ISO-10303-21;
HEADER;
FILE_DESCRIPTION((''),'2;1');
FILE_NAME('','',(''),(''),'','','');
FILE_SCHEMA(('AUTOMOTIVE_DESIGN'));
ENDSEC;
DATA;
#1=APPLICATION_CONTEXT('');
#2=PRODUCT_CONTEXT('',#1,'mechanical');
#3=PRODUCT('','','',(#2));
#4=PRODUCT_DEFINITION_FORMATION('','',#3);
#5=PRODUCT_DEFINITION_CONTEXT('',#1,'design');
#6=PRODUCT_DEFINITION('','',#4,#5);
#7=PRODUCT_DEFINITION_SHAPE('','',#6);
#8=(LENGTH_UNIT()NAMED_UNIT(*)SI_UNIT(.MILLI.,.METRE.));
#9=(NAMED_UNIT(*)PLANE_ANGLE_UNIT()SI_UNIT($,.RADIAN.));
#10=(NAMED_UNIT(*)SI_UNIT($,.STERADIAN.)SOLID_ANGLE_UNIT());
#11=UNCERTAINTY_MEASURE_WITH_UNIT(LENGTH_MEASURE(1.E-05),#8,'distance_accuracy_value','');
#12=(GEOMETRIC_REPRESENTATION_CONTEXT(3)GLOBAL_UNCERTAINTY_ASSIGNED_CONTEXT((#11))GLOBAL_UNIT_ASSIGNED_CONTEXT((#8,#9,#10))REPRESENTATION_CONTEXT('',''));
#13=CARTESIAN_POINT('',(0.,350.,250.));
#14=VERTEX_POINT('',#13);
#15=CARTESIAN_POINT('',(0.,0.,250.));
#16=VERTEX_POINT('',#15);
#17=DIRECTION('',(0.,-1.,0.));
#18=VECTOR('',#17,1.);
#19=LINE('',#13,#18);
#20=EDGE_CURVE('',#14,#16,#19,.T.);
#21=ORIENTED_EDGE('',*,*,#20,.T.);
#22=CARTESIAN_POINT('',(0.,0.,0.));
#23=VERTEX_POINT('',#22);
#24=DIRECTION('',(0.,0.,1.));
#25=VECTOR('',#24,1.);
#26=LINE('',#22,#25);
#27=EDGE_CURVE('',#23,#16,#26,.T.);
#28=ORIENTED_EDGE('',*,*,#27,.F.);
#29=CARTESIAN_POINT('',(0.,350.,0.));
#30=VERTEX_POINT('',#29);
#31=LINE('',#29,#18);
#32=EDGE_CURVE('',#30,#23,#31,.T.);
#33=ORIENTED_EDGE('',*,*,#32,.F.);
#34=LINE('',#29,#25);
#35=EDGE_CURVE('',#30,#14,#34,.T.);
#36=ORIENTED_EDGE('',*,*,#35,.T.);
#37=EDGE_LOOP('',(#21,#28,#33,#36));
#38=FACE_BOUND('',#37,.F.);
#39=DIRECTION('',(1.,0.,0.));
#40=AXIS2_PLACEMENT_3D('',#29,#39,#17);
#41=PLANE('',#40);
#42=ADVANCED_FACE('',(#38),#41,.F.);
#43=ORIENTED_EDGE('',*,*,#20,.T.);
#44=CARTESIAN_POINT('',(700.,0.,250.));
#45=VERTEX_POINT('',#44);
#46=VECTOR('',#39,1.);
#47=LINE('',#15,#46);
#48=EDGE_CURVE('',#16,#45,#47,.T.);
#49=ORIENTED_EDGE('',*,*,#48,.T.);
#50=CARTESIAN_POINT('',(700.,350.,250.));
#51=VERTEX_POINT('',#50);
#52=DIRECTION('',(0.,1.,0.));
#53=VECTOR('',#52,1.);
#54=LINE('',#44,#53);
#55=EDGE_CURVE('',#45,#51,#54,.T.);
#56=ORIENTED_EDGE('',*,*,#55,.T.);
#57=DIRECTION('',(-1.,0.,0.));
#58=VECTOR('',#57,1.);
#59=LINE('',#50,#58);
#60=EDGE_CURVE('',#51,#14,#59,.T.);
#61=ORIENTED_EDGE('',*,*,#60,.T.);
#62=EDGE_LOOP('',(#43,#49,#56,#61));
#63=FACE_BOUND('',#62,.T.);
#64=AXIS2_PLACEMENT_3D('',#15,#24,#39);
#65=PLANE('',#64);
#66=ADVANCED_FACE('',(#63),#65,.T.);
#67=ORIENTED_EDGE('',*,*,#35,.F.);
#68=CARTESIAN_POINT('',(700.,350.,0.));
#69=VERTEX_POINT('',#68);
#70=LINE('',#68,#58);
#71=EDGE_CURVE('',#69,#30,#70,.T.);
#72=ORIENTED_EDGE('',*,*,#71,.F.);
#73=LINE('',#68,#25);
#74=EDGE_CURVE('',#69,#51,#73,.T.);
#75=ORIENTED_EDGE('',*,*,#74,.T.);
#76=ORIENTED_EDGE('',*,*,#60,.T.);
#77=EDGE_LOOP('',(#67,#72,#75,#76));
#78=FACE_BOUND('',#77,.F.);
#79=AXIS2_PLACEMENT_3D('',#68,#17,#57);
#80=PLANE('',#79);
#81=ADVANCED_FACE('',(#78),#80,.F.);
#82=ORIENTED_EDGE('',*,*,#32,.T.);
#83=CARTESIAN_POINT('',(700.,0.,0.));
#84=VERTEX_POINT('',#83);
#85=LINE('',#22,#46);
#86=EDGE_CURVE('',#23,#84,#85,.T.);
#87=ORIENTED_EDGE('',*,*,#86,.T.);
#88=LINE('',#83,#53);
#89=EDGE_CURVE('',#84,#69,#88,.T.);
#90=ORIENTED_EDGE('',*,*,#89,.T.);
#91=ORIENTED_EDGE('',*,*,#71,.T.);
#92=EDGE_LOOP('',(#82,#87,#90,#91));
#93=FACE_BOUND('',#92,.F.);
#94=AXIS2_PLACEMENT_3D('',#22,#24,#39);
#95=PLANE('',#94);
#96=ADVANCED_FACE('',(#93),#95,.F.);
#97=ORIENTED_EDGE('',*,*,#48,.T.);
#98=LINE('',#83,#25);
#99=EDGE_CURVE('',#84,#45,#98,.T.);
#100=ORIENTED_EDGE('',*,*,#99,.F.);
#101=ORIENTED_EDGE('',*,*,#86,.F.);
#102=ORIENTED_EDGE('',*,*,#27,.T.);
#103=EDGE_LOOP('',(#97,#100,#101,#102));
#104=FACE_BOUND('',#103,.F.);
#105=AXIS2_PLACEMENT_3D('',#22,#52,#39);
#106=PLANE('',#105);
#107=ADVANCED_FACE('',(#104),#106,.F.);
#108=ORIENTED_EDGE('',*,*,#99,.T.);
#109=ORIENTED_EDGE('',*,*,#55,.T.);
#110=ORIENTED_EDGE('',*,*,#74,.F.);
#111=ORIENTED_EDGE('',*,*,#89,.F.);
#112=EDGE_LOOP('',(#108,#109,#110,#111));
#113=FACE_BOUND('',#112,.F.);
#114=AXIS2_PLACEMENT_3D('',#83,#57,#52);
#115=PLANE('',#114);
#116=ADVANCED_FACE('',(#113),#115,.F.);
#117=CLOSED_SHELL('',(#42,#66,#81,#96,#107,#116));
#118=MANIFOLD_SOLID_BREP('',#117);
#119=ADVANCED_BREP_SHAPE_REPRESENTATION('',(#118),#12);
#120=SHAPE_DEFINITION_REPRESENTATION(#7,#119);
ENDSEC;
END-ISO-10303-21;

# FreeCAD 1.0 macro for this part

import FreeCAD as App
import Part
import Sketcher
from FreeCAD import Vector


def add_polygon(sketch, points):
    """Adds a closed chain of lines whose ends are joined by coincident constraints."""
    first, n = sketch.GeometryCount, len(points)
    for a, b in zip(points, points[1:] + points[:1]):
        sketch.addGeometry(Part.LineSegment(App.Vector(*a, 0), App.Vector(*b, 0)), False)
    for i in range(n):
        sketch.addConstraint(Sketcher.Constraint("Coincident", first + i, 2, first + (i + 1) % n, 1))

doc = App.newDocument("Part")
params = doc.addObject("Spreadsheet::Sheet", "Params")
for row, (alias, value) in enumerate([
    ("sketch1_width", "700 mm"),
    ("sketch1_height", "350 mm"),
    ("pad1_length", "250 mm"),
], start=1):
    params.set(f"A{row}", alias)
    params.set(f"B{row}", "=" + value)
    params.setAlias(f"B{row}", alias)

body = doc.addObject("PartDesign::Body", "Body")

sketch1 = doc.addObject("Sketcher::SketchObject", "Sketch")
body.addObject(sketch1)
sketch1.AttachmentSupport = (doc.XY_Plane, [""])
sketch1.MapMode = "FlatFace"
add_polygon(sketch1, [(0, 350), (0, 0), (700, 0), (700, 350)])
sketch1.addConstraint([
    Sketcher.Constraint("Vertical", 0),
    Sketcher.Constraint("Horizontal", 1),
    Sketcher.Constraint("Vertical", 2),
    Sketcher.Constraint("Horizontal", 3),
    Sketcher.Constraint("Coincident", 0, 2, -1, 1),
    Sketcher.Constraint("DistanceX", 1, 1, 1, 2, 700.0),
    Sketcher.Constraint("DistanceY", 0, 2, 0, 1, 350.0),
])
sketch1.setExpression("Constraints[9]", "Params.sketch1_width")
sketch1.setExpression("Constraints[10]", "Params.sketch1_height")
pad1 = doc.addObject("PartDesign::Pad", "Pad")
body.addObject(pad1)
pad1.Profile = sketch1
pad1.setExpression("Length", "Params.pad1_length")

doc.recompute()
